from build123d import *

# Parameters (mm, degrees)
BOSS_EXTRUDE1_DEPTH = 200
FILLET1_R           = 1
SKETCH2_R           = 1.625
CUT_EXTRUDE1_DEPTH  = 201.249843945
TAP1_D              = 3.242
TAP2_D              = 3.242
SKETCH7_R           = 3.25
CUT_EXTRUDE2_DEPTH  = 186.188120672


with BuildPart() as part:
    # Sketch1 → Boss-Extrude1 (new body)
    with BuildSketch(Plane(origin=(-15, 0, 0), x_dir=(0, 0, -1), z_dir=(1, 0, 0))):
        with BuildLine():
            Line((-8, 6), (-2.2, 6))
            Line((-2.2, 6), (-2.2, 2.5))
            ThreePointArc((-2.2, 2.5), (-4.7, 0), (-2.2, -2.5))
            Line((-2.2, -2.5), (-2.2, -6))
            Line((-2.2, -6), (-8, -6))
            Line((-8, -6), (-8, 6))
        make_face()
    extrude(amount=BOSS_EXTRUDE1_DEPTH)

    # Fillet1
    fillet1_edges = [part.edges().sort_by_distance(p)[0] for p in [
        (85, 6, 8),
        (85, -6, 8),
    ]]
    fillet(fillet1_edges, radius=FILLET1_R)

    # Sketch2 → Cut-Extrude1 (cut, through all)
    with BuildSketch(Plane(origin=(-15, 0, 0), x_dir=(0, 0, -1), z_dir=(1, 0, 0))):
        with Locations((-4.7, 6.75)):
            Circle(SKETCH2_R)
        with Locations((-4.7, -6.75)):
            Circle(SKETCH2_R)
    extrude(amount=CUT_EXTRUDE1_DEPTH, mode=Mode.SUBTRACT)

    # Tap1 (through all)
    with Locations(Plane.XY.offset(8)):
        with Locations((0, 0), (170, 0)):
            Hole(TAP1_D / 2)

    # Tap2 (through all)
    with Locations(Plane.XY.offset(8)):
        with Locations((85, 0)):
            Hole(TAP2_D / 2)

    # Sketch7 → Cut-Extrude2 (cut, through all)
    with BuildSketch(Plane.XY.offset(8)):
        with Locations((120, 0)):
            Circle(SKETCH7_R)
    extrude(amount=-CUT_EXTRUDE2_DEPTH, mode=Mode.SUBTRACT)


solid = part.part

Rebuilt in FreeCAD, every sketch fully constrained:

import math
import FreeCAD as App
import Part
import Sketcher
from FreeCAD import Vector


def edges_at(feature, points):
    """Names of the edges that pass closest to the given points."""
    edges = feature.Shape.Edges
    near = lambda p: min(range(len(edges)), key=lambda i: edges[i].distToShape(Part.Vertex(*p))[0])
    return sorted({f"Edge{near(p) + 1}" for p in points})

doc = App.newDocument("Part")
params = doc.addObject("Spreadsheet::Sheet", "Params")
for row, (alias, value) in enumerate([
    ("sketch1_radius", "2.5 mm"),
    ("sketch1_width", "12 mm"),
    ("sketch1_height", "5.8 mm"),
    ("pad1_length", "200 mm"),
    ("fillet_radius", "1 mm"),
    ("sketch2_diameter", "3.25 mm"),
    ("hole_diameter", "3.242 mm"),
    ("hole2_diameter", "3.242 mm"),
    ("sketch5_diameter", "6.5 mm"),
], start=1):
    params.set(f"A{row}", alias)
    params.set(f"B{row}", "=" + value)
    params.setAlias(f"B{row}", alias)

body = doc.addObject("PartDesign::Body", "Body")

# Sketch on YZ plane
sketch1 = body.newObject("Sketcher::SketchObject", "Sketch")
sketch1.AttachmentSupport = (doc.getObject("YZ_Plane"), [""])
sketch1.MapMode = "FlatFace"
sketch1.AttachmentOffset = App.Placement(Vector(0, 0, -15), App.Rotation())
sketch1.addGeometry(Part.LineSegment(Vector(6, 2.2, 0), Vector(6, 8, 0)), False)
sketch1.addGeometry(Part.LineSegment(Vector(6, 8, 0), Vector(-6, 8, 0)), False)
sketch1.addGeometry(Part.LineSegment(Vector(-6, 8, 0), Vector(-6, 2.2, 0)), False)
sketch1.addGeometry(Part.LineSegment(Vector(-6, 2.2, 0), Vector(-2.5, 2.2, 0)), False)
sketch1.addGeometry(Part.ArcOfCircle(Part.Circle(Vector(0, 2.2, 0), Vector(0, 0, 1), 2.5), math.radians(0), math.radians(180)), False)
sketch1.addGeometry(Part.LineSegment(Vector(2.5, 2.2, 0), Vector(6, 2.2, 0)), False)
sketch1.addConstraint(Sketcher.Constraint("Coincident", 0, 2, 1, 1))
sketch1.addConstraint(Sketcher.Constraint("Coincident", 1, 2, 2, 1))
sketch1.addConstraint(Sketcher.Constraint("Coincident", 2, 2, 3, 1))
sketch1.addConstraint(Sketcher.Constraint("Coincident", 3, 2, 4, 2))
sketch1.addConstraint(Sketcher.Constraint("Coincident", 4, 1, 5, 1))
sketch1.addConstraint(Sketcher.Constraint("Coincident", 5, 2, 0, 1))
sketch1.addConstraint(Sketcher.Constraint("Vertical", 0))
sketch1.addConstraint(Sketcher.Constraint("Horizontal", 1))
sketch1.addConstraint(Sketcher.Constraint("Vertical", 2))
sketch1.addConstraint(Sketcher.Constraint("Horizontal", 3))
sketch1.addConstraint(Sketcher.Constraint("Horizontal", 5))
sketch1.addConstraint(Sketcher.Constraint("Symmetric", 3, 2, 4, 1, -2))
sketch1.addConstraint(Sketcher.Constraint("Horizontal", 4, 3, 2, 2))
sketch1.addConstraint(Sketcher.Constraint("Equal", 3, 5))
sketch1.addConstraint(Sketcher.Constraint("Radius", 4, 2.5))
sketch1.addConstraint(Sketcher.Constraint("DistanceX", 1, 2, 1, 1, 12.0))
sketch1.addConstraint(Sketcher.Constraint("DistanceY", 0, 1, 0, 2, 5.8))
sketch1.addConstraint(Sketcher.Constraint("DistanceY", -1, 1, 0, 2, 8.0))
sketch1.setExpression("Constraints[14]", "Params.sketch1_radius")
sketch1.setExpression("Constraints[15]", "Params.sketch1_width")
sketch1.setExpression("Constraints[16]", "Params.sketch1_height")
pad1 = body.newObject("PartDesign::Pad", "Pad")
pad1.Profile = sketch1
pad1.setExpression("Length", "Params.pad1_length")
doc.recompute()

fillet = body.newObject("PartDesign::Fillet", "Fillet")
fillet.Base = (pad1, edges_at(pad1, [(85, 6, 8), (85, -6, 8)]))
fillet.setExpression("Radius", "Params.fillet_radius")

# Sketch on YZ plane
sketch2 = body.newObject("Sketcher::SketchObject", "Sketch001")
sketch2.AttachmentSupport = (doc.getObject("YZ_Plane"), [""])
sketch2.MapMode = "FlatFace"
sketch2.AttachmentOffset = App.Placement(Vector(0, 0, -15), App.Rotation())
sketch2.addGeometry(Part.Circle(Vector(6.8, 4.7, 0), Vector(0, 0, 1), 1.6), False)
sketch2.addGeometry(Part.Circle(Vector(-6.8, 4.7, 0), Vector(0, 0, 1), 1.6), False)
sketch2.addConstraint(Sketcher.Constraint("Equal", 0, 1))
sketch2.addConstraint(Sketcher.Constraint("Symmetric", 0, 3, 1, 3, -2))
sketch2.addConstraint(Sketcher.Constraint("Diameter", 0, 3.25))
sketch2.addConstraint(Sketcher.Constraint("DistanceY", -1, 1, 0, 3, 4.7))
sketch2.addConstraint(Sketcher.Constraint("DistanceX", 1, 3, 0, 3, 13.5))
sketch2.setExpression("Constraints[2]", "Params.sketch2_diameter")
pocket1 = body.newObject("PartDesign::Pocket", "Pocket")
pocket1.Profile = sketch2
pocket1.Type = "ThroughAll"
pocket1.Reversed = True

# Sketch on XY plane
sketch3 = body.newObject("Sketcher::SketchObject", "Sketch002")
sketch3.AttachmentSupport = (doc.getObject("XY_Plane"), [""])
sketch3.MapMode = "FlatFace"
sketch3.AttachmentOffset = App.Placement(Vector(0, 0, 8), App.Rotation())
sketch3.addGeometry(Part.Circle(Vector(0, 0, 0), Vector(0, 0, 1), 1.6), False)
sketch3.addGeometry(Part.Circle(Vector(170, 0, 0), Vector(0, 0, 1), 1.6), False)
sketch3.addConstraint(Sketcher.Constraint("Coincident", 0, 3, -1, 1))
sketch3.addConstraint(Sketcher.Constraint("Equal", 0, 1))
sketch3.addConstraint(Sketcher.Constraint("PointOnObject", 1, 3, -1))
sketch3.addConstraint(Sketcher.Constraint("Diameter", 0, 3.242))
sketch3.addConstraint(Sketcher.Constraint("DistanceX", -1, 1, 1, 3, 170.0))
doc.recompute()
hole = body.newObject("PartDesign::Hole", "Hole")
hole.Profile = sketch3
hole.ThreadType = "None"
hole.setExpression("Diameter", "Params.hole_diameter")
hole.DepthType = "ThroughAll"

# Sketch on XY plane
sketch4 = body.newObject("Sketcher::SketchObject", "Sketch003")
sketch4.AttachmentSupport = (doc.getObject("XY_Plane"), [""])
sketch4.MapMode = "FlatFace"
sketch4.AttachmentOffset = App.Placement(Vector(0, 0, 8), App.Rotation())
sketch4.addGeometry(Part.Circle(Vector(85, 0, 0), Vector(0, 0, 1), 1.6), False)
sketch4.addConstraint(Sketcher.Constraint("PointOnObject", 0, 3, -1))
sketch4.addConstraint(Sketcher.Constraint("Diameter", 0, 3.242))
sketch4.addConstraint(Sketcher.Constraint("DistanceX", -1, 1, 0, 3, 85.0))
doc.recompute()
hole2 = body.newObject("PartDesign::Hole", "Hole001")
hole2.Profile = sketch4
hole2.ThreadType = "None"
hole2.setExpression("Diameter", "Params.hole2_diameter")
hole2.DepthType = "ThroughAll"

# Sketch on XY plane
sketch5 = body.newObject("Sketcher::SketchObject", "Sketch004")
sketch5.AttachmentSupport = (doc.getObject("XY_Plane"), [""])
sketch5.MapMode = "FlatFace"
sketch5.AttachmentOffset = App.Placement(Vector(0, 0, 8), App.Rotation())
sketch5.addGeometry(Part.Circle(Vector(120, 0, 0), Vector(0, 0, 1), 3.2), False)
sketch5.addConstraint(Sketcher.Constraint("PointOnObject", 0, 3, -1))
sketch5.addConstraint(Sketcher.Constraint("Diameter", 0, 6.5))
sketch5.addConstraint(Sketcher.Constraint("DistanceX", -1, 1, 0, 3, 120.0))
sketch5.setExpression("Constraints[1]", "Params.sketch5_diameter")
pocket2 = body.newObject("PartDesign::Pocket", "Pocket001")
pocket2.Profile = sketch5
pocket2.Type = "ThroughAll"

doc.recompute()
